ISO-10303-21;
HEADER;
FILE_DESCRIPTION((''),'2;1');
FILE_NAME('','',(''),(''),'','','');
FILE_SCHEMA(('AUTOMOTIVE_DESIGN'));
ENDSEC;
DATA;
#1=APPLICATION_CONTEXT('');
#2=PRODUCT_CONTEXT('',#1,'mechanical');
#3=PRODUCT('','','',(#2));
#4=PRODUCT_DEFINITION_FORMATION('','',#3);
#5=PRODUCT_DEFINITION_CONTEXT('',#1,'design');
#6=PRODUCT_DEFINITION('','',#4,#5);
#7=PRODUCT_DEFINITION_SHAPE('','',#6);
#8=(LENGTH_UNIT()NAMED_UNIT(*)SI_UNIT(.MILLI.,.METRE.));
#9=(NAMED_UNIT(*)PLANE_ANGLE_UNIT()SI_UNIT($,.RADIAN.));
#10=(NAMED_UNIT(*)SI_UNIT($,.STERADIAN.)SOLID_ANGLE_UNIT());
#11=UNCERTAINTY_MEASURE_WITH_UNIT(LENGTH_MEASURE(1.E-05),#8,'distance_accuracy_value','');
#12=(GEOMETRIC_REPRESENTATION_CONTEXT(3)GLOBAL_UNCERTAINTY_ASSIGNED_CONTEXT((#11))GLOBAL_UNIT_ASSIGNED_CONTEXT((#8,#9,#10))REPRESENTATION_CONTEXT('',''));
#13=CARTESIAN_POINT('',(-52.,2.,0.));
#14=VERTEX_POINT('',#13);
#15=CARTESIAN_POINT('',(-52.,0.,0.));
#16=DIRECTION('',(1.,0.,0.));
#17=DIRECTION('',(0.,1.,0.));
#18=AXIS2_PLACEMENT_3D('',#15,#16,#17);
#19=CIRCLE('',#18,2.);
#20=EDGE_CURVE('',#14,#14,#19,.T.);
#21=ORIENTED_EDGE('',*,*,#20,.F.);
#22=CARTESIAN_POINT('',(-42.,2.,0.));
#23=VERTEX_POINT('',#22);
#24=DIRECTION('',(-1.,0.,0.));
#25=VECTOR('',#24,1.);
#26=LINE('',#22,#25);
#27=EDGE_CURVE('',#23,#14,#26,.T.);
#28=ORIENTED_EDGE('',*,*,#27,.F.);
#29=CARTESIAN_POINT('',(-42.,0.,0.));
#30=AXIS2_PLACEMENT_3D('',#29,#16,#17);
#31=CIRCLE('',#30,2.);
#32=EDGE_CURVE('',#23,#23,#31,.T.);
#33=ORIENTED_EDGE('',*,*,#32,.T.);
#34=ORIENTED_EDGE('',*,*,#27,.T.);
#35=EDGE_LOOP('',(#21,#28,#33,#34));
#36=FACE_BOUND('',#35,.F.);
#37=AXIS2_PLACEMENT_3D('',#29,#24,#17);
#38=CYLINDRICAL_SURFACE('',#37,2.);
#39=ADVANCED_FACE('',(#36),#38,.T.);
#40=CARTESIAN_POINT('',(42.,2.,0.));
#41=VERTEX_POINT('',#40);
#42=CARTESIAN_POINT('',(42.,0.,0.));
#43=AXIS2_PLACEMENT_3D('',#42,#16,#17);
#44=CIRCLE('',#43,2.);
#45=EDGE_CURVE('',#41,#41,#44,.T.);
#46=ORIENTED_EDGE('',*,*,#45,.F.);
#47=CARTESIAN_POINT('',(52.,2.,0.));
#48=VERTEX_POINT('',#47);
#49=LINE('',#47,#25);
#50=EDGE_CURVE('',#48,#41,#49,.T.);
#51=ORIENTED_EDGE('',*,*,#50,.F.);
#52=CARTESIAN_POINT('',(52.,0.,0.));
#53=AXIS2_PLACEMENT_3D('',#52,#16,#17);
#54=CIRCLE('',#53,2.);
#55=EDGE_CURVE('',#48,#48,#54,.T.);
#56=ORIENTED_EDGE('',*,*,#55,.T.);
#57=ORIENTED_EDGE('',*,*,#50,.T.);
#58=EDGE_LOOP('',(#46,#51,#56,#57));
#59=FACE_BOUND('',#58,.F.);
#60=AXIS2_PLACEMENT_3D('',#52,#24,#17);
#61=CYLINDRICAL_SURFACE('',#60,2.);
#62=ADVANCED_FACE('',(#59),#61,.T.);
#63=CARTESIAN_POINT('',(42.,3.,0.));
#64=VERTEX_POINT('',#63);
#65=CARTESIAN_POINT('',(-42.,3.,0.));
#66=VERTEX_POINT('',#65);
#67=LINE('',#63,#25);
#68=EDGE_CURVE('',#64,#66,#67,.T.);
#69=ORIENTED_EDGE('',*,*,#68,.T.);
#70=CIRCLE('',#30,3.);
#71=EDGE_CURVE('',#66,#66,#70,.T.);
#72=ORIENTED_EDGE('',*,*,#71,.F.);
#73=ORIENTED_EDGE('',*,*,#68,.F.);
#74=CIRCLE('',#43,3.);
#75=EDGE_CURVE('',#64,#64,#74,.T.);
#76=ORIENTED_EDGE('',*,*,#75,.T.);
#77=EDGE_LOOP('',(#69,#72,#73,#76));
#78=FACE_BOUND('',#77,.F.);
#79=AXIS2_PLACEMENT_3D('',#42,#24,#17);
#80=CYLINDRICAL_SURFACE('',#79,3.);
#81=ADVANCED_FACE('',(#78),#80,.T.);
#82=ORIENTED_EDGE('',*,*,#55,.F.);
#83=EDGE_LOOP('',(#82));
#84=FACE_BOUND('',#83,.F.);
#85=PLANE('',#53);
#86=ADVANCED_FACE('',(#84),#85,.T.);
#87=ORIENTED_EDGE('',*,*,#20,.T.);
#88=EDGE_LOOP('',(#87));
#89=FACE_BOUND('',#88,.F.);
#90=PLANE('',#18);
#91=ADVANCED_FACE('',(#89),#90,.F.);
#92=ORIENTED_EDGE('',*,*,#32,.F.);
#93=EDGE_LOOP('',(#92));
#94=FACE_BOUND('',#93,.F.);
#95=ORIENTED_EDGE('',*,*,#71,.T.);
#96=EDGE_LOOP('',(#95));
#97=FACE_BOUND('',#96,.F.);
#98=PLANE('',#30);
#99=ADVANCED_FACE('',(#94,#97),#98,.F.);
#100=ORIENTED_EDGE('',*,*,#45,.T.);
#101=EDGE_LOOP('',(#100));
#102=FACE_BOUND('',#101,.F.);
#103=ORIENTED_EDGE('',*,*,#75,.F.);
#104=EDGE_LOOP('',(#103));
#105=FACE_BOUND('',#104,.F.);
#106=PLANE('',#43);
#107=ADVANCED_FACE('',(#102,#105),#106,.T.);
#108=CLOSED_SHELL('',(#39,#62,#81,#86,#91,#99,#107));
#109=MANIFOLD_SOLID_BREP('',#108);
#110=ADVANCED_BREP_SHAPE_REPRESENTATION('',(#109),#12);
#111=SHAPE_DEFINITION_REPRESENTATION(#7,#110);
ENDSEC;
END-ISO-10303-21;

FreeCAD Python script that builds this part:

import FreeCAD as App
import Part
import Sketcher


def add_polygon(sketch, points):
    """Adds a closed chain of lines whose ends are joined by coincident constraints."""
    first, n = sketch.GeometryCount, len(points)
    for a, b in zip(points, points[1:] + points[:1]):
        sketch.addGeometry(Part.LineSegment(App.Vector(*a, 0), App.Vector(*b, 0)), False)
    for i in range(n):
        sketch.addConstraint(Sketcher.Constraint("Coincident", first + i, 2, first + (i + 1) % n, 1))

doc = App.newDocument("Part")
params = doc.addObject("Spreadsheet::Sheet", "Params")
for row, (alias, value) in enumerate([
    ("sketch1_width", "104 mm"),
    ("sketch1_width2", "10 mm"),
    ("sketch1_height", "2 mm"),
    ("sketch1_height2", "1 mm"),
    ("revolution_angle", "360 deg"),
], start=1):
    params.set(f"A{row}", alias)
    params.set(f"B{row}", "=" + value)
    params.setAlias(f"B{row}", alias)

body = doc.addObject("PartDesign::Body", "Body")

sketch1 = doc.addObject("Sketcher::SketchObject", "Sketch")
body.addObject(sketch1)
sketch1.AttachmentSupport = (doc.XY_Plane, [""])
sketch1.MapMode = "FlatFace"
add_polygon(sketch1, [(-52, 0), (52, 0), (52, 2), (42, 2), (42, 3), (-42, 3), (-42, 2), (-52, 2)])
sketch1.addConstraint(Sketcher.Constraint("Horizontal", 0))
sketch1.addConstraint(Sketcher.Constraint("Vertical", 1))
sketch1.addConstraint(Sketcher.Constraint("Horizontal", 2))
sketch1.addConstraint(Sketcher.Constraint("Vertical", 3))
sketch1.addConstraint(Sketcher.Constraint("Horizontal", 4))
sketch1.addConstraint(Sketcher.Constraint("Vertical", 5))
sketch1.addConstraint(Sketcher.Constraint("Horizontal", 6))
sketch1.addConstraint(Sketcher.Constraint("Vertical", 7))
sketch1.addConstraint(Sketcher.Constraint("Symmetric", 0, 2, 7, 2, -1, 1))
sketch1.addConstraint(Sketcher.Constraint("Symmetric", 2, 2, 5, 2, -2))
sketch1.addConstraint(Sketcher.Constraint("DistanceX", 0, 1, 0, 2, 104.0))
sketch1.addConstraint(Sketcher.Constraint("DistanceX", 2, 2, 2, 1, 10.0))
sketch1.addConstraint(Sketcher.Constraint("DistanceY", 1, 1, 1, 2, 2.0))
sketch1.addConstraint(Sketcher.Constraint("DistanceY", 3, 1, 3, 2, 1.0))
sketch1.setExpression("Constraints[18]", "Params.sketch1_width")
sketch1.setExpression("Constraints[19]", "Params.sketch1_width2")
sketch1.setExpression("Constraints[20]", "Params.sketch1_height")
sketch1.setExpression("Constraints[21]", "Params.sketch1_height2")
revolution = doc.addObject("PartDesign::Revolution", "Revolution")
body.addObject(revolution)
revolution.Profile = sketch1
revolution.ReferenceAxis = (sketch1, ["H_Axis"])
revolution.setExpression("Angle", "Params.revolution_angle")

doc.recompute()
